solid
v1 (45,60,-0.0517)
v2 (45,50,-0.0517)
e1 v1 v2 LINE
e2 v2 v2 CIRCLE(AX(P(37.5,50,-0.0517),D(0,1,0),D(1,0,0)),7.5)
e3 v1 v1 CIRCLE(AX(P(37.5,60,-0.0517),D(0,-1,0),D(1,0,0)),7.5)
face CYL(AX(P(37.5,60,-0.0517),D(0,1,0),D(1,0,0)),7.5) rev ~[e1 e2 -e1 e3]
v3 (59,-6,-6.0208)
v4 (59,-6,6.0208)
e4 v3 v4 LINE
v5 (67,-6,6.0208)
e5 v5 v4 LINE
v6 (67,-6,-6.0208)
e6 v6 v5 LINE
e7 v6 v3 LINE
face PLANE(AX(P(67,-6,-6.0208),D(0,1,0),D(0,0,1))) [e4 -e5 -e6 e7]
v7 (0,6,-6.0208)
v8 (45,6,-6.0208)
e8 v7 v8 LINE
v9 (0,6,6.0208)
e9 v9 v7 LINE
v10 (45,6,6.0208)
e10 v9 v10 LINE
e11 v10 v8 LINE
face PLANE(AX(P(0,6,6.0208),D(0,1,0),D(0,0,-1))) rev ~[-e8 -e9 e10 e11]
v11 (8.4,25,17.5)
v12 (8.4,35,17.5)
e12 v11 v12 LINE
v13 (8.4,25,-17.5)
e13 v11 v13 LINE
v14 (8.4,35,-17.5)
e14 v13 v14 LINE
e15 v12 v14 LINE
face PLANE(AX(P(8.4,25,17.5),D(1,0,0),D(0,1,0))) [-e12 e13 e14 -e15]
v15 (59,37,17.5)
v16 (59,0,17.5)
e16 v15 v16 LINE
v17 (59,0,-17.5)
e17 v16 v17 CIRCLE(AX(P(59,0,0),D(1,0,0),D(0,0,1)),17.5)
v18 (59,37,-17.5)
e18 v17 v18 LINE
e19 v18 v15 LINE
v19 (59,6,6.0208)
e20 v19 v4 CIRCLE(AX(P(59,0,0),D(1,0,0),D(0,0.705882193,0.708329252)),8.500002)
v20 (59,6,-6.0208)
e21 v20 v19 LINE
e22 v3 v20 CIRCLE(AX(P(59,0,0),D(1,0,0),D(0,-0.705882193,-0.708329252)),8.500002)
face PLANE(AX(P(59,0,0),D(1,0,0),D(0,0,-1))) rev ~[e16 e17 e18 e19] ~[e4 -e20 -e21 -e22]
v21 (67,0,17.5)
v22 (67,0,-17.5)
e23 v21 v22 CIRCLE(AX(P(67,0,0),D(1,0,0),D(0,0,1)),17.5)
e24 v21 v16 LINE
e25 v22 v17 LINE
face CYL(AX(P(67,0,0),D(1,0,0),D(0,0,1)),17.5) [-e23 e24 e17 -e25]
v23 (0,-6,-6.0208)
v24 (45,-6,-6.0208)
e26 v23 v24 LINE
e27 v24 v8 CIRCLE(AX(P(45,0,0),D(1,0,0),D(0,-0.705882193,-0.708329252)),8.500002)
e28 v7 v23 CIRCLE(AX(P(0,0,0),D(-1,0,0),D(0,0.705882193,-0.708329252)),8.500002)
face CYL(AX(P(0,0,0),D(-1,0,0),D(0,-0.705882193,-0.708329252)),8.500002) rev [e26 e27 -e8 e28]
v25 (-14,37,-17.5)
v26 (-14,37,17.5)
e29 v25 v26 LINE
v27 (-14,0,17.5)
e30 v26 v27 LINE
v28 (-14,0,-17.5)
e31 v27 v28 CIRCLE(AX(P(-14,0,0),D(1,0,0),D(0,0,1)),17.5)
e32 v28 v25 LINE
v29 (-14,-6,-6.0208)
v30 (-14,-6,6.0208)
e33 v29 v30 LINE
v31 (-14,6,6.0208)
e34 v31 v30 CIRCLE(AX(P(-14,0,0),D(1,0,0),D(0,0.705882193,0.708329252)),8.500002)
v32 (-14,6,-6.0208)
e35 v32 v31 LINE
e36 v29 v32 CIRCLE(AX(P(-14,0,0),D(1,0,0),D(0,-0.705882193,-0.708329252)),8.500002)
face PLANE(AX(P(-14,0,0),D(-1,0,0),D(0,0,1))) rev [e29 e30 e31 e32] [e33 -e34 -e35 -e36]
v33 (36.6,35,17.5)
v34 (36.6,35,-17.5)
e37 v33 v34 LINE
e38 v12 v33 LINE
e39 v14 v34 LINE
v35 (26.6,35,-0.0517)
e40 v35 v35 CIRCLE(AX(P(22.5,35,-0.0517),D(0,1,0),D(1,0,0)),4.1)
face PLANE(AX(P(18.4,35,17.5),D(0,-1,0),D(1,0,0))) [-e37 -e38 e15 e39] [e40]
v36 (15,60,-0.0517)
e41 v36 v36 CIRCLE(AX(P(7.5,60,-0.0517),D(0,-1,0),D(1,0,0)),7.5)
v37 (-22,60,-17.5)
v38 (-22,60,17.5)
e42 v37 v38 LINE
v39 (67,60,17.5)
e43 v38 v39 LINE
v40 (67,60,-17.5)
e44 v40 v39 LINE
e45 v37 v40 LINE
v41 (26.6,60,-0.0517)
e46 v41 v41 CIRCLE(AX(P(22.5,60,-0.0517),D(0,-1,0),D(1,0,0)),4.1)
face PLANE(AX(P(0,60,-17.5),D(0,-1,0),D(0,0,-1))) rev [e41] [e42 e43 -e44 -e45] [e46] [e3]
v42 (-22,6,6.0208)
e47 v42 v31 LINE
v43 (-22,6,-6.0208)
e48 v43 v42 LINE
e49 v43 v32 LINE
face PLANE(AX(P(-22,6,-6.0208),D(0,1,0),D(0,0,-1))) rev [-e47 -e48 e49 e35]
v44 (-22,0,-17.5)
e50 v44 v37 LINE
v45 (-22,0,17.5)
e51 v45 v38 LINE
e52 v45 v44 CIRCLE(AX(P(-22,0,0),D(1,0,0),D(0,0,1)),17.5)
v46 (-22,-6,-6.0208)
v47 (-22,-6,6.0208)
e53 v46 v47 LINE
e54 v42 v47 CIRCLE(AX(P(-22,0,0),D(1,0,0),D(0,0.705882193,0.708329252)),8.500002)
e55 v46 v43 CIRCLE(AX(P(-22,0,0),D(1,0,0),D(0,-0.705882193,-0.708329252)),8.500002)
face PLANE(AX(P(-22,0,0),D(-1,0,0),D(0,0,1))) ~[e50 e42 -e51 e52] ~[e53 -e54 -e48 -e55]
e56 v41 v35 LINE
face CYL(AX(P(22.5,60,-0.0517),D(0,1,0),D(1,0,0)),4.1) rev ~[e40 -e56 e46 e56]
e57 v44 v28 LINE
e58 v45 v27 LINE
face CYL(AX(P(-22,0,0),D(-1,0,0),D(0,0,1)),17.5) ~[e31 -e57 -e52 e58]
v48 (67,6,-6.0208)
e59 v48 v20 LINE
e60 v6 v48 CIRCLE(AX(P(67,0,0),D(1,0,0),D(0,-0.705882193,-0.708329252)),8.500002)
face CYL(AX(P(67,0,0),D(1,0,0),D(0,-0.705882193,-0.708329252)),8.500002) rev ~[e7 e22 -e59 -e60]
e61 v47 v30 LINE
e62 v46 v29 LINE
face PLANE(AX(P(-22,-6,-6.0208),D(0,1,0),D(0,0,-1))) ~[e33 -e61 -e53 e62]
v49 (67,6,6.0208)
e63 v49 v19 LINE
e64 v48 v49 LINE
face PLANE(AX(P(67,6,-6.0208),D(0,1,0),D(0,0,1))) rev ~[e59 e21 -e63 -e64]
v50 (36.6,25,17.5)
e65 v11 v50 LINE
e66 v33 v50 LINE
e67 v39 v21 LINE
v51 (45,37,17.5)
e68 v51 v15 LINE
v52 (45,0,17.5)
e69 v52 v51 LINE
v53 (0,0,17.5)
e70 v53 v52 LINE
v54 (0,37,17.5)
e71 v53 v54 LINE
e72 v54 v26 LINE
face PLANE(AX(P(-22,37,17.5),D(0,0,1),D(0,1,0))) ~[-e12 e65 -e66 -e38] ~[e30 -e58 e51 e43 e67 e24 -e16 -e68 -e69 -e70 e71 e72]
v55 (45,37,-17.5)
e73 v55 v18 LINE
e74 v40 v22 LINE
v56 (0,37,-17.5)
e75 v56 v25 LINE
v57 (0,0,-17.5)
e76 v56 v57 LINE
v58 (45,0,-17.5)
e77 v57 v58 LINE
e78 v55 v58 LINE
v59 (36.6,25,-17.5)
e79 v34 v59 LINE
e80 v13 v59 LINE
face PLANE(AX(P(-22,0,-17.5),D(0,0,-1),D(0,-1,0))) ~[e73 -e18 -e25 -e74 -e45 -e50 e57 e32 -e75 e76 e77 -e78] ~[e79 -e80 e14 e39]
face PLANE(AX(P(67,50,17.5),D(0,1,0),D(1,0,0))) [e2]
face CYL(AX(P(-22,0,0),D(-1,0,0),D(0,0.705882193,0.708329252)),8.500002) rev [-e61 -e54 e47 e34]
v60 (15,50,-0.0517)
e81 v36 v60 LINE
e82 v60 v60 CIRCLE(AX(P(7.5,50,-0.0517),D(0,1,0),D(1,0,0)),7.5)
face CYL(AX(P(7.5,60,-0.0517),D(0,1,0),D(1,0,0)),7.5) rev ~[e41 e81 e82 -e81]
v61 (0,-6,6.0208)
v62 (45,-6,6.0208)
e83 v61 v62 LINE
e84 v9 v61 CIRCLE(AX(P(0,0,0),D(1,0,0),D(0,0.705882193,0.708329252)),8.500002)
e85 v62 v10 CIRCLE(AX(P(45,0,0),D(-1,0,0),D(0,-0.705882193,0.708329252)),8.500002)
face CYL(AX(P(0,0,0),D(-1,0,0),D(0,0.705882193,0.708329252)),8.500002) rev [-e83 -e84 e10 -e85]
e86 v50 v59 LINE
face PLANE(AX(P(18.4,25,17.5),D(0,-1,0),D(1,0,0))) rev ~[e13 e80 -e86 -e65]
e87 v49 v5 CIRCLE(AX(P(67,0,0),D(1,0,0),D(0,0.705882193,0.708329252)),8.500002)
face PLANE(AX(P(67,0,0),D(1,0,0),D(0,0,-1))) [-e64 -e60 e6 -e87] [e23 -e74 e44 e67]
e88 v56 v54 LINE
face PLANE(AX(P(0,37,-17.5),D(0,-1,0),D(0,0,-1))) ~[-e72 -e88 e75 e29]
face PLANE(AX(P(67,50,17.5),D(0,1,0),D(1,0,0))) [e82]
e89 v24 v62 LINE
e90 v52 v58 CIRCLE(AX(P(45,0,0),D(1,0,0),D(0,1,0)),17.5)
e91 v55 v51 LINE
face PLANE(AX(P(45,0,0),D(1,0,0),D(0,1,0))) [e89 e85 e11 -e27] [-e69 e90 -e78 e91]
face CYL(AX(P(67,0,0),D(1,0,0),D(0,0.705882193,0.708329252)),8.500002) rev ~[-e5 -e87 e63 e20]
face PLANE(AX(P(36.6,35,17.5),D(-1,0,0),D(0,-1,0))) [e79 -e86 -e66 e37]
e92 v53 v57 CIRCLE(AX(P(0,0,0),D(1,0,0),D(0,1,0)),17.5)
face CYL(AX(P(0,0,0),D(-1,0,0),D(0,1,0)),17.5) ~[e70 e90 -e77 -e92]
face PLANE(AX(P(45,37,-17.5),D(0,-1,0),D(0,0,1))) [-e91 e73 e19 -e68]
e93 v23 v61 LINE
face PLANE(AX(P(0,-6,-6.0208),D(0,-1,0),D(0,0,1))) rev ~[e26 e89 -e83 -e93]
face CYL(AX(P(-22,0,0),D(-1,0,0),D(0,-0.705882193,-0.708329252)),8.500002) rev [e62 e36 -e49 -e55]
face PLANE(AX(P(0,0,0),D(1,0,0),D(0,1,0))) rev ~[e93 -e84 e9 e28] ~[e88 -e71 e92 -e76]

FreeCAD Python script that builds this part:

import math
import FreeCAD as App
import Part
import Sketcher
Q = App.Units.Quantity


def add_polygon(sketch, points):
    """Adds a closed chain of lines whose ends are joined by coincident constraints."""
    first, n = sketch.GeometryCount, len(points)
    for a, b in zip(points, points[1:] + points[:1]):
        sketch.addGeometry(Part.LineSegment(App.Vector(*a, 0), App.Vector(*b, 0)), False)
    for i in range(n):
        sketch.addConstraint(Sketcher.Constraint("Coincident", first + i, 2, first + (i + 1) % n, 1))

doc = App.newDocument("Part")
body = doc.addObject("PartDesign::Body", "Body")

sketch1 = body.newObject("Sketcher::SketchObject", "Sketch")
sketch1.AttachmentSupport = (doc.getObject("YZ_Plane"), [""])
sketch1.MapMode = "FlatFace"
sketch1.addGeometry(Part.ArcOfCircle(Part.Circle(App.Vector(0, 0, 0), App.Vector(0, 0, 1), 18), math.radians(90), math.radians(270)), False)
sketch1.addGeometry(Part.LineSegment(App.Vector(0, -18, 0), App.Vector(60, -18, 0)), False)
sketch1.addGeometry(Part.LineSegment(App.Vector(60, -18, 0), App.Vector(60, 18, 0)), False)
sketch1.addGeometry(Part.LineSegment(App.Vector(60, 18, 0), App.Vector(0, 18, 0)), False)
sketch1.addGeometry(Part.LineSegment(App.Vector(-6, -6, 0), App.Vector(-6, 6, 0)), False)
sketch1.addGeometry(Part.ArcOfCircle(Part.Circle(App.Vector(0, 0, 0), App.Vector(0, 0, 1), 9), math.radians(45), math.radians(135)), False)
sketch1.addGeometry(Part.LineSegment(App.Vector(6, 6, 0), App.Vector(6, -6, 0)), False)
sketch1.addGeometry(Part.ArcOfCircle(Part.Circle(App.Vector(0, 0, 0), App.Vector(0, 0, 1), 9), math.radians(-135), math.radians(-45)), False)
sketch1.addConstraint(Sketcher.Constraint("Tangent", 0, 2, 1, 1))
sketch1.addConstraint(Sketcher.Constraint("Coincident", 1, 2, 2, 1))
sketch1.addConstraint(Sketcher.Constraint("Coincident", 2, 2, 3, 1))
sketch1.addConstraint(Sketcher.Constraint("Tangent", 3, 2, 0, 1))
sketch1.addConstraint(Sketcher.Constraint("Coincident", 4, 2, 5, 2))
sketch1.addConstraint(Sketcher.Constraint("Coincident", 5, 1, 6, 1))
sketch1.addConstraint(Sketcher.Constraint("Coincident", 6, 2, 7, 2))
sketch1.addConstraint(Sketcher.Constraint("Coincident", 7, 1, 4, 1))
sketch1.addConstraint(Sketcher.Constraint("Horizontal", 1))
sketch1.addConstraint(Sketcher.Constraint("Vertical", 2))
sketch1.addConstraint(Sketcher.Constraint("Horizontal", 3))
sketch1.addConstraint(Sketcher.Constraint("Vertical", 4))
sketch1.addConstraint(Sketcher.Constraint("Vertical", 6))
sketch1.addConstraint(Sketcher.Constraint("Coincident", 0, 3, -1, 1))
sketch1.addConstraint(Sketcher.Constraint("Coincident", 5, 3, -1, 1))
sketch1.addConstraint(Sketcher.Constraint("Coincident", 7, 3, -1, 1))
sketch1.addConstraint(Sketcher.Constraint("Equal", 5, 7))
sketch1.addConstraint(Sketcher.Constraint("Horizontal", 4, 2, 5, 1))
sketch1.addConstraint(Sketcher.Constraint("Radius", 0, Q("17.5 mm")))
sketch1.addConstraint(Sketcher.Constraint("DistanceX", 1, 1, 1, 2, Q("60 mm")))
sketch1.addConstraint(Sketcher.Constraint("Radius", 5, Q("8.5 mm")))
sketch1.addConstraint(Sketcher.Constraint("DistanceX", 4, 2, -1, 1, Q("6 mm")))
pad1 = body.newObject("PartDesign::Pad", "Pad")
pad1.Profile = sketch1
pad1.Length = 45

sketch2 = body.newObject("Sketcher::SketchObject", "Sketch001")
sketch2.AttachmentSupport = (doc.getObject("YZ_Plane"), [""])
sketch2.MapMode = "FlatFace"
sketch2.AttachmentOffset = App.Placement(App.Vector(0, 0, 45), App.Rotation())
add_polygon(sketch2, [(37, -18), (60, -18), (60, 18), (37, 18)])
sketch2.addConstraint(Sketcher.Constraint("Horizontal", 0))
sketch2.addConstraint(Sketcher.Constraint("Vertical", 1))
sketch2.addConstraint(Sketcher.Constraint("Horizontal", 2))
sketch2.addConstraint(Sketcher.Constraint("Vertical", 3))
sketch2.addConstraint(Sketcher.Constraint("DistanceX", 0, 1, 0, 2, Q("23 mm")))
sketch2.addConstraint(Sketcher.Constraint("DistanceY", 1, 1, 1, 2, Q("35 mm")))
sketch2.addConstraint(Sketcher.Constraint("DistanceX", -1, 1, 0, 2, Q("60 mm")))
sketch2.addConstraint(Sketcher.Constraint("DistanceY", 0, 2, -1, 1, Q("17.5 mm")))
pad2 = body.newObject("PartDesign::Pad", "Pad001")
pad2.Profile = sketch2
pad2.Length = 22
doc.recompute()

datumplane = body.newObject("PartDesign::Plane", "DatumPlane")
datumplane.AttachmentSupport = (doc.getObject("YZ_Plane"), [""])
datumplane.MapMode = "FlatFace"
datumplane.AttachmentOffset = App.Placement(App.Vector(0, 0, 22.5), App.Rotation())
mirrored = body.newObject("PartDesign::Mirrored", "Mirrored")
mirrored.Originals = [pad2]
mirrored.MirrorPlane = (datumplane, [""])
body.Tip = mirrored

sketch3 = body.newObject("Sketcher::SketchObject", "Sketch002")
sketch3.AttachmentSupport = (doc.getObject("YZ_Plane"), [""])
sketch3.MapMode = "FlatFace"
sketch3.AttachmentOffset = App.Placement(App.Vector(0, 0, 67), App.Rotation())
sketch3.addGeometry(Part.LineSegment(App.Vector(0, -18, 0), App.Vector(37, -18, 0)), False)
sketch3.addGeometry(Part.LineSegment(App.Vector(37, -18, 0), App.Vector(37, 18, 0)), False)
sketch3.addGeometry(Part.LineSegment(App.Vector(37, 18, 0), App.Vector(0, 18, 0)), False)
sketch3.addGeometry(Part.ArcOfCircle(Part.Circle(App.Vector(0, 0, 0), App.Vector(0, 0, 1), 18), math.radians(90), math.radians(270)), False)
sketch3.addGeometry(Part.ArcOfCircle(Part.Circle(App.Vector(0, 0, 0), App.Vector(0, 0, 1), 9), math.radians(-135), math.radians(-45)), False)
sketch3.addGeometry(Part.LineSegment(App.Vector(-6, -6, 0), App.Vector(-6, 6, 0)), False)
sketch3.addGeometry(Part.ArcOfCircle(Part.Circle(App.Vector(0, 0, 0), App.Vector(0, 0, 1), 9), math.radians(45), math.radians(135)), False)
sketch3.addGeometry(Part.LineSegment(App.Vector(6, 6, 0), App.Vector(6, -6, 0)), False)
sketch3.addConstraint(Sketcher.Constraint("Coincident", 0, 2, 1, 1))
sketch3.addConstraint(Sketcher.Constraint("Coincident", 1, 2, 2, 1))
sketch3.addConstraint(Sketcher.Constraint("Tangent", 2, 2, 3, 1))
sketch3.addConstraint(Sketcher.Constraint("Tangent", 3, 2, 0, 1))
sketch3.addConstraint(Sketcher.Constraint("Coincident", 4, 1, 5, 1))
sketch3.addConstraint(Sketcher.Constraint("Coincident", 5, 2, 6, 2))
sketch3.addConstraint(Sketcher.Constraint("Coincident", 6, 1, 7, 1))
sketch3.addConstraint(Sketcher.Constraint("Coincident", 7, 2, 4, 2))
sketch3.addConstraint(Sketcher.Constraint("Horizontal", 0))
sketch3.addConstraint(Sketcher.Constraint("Vertical", 1))
sketch3.addConstraint(Sketcher.Constraint("Horizontal", 2))
sketch3.addConstraint(Sketcher.Constraint("Vertical", 5))
sketch3.addConstraint(Sketcher.Constraint("Vertical", 7))
sketch3.addConstraint(Sketcher.Constraint("Coincident", 3, 3, -1, 1))
sketch3.addConstraint(Sketcher.Constraint("Coincident", 4, 3, -1, 1))
sketch3.addConstraint(Sketcher.Constraint("Coincident", 6, 3, -1, 1))
sketch3.addConstraint(Sketcher.Constraint("Equal", 4, 6))
sketch3.addConstraint(Sketcher.Constraint("Horizontal", 5, 2, 6, 1))
sketch3.addConstraint(Sketcher.Constraint("Radius", 3, Q("17.5 mm")))
sketch3.addConstraint(Sketcher.Constraint("Radius", 4, Q("8.5 mm")))
sketch3.addConstraint(Sketcher.Constraint("DistanceX", 0, 1, 0, 2, Q("37 mm")))
sketch3.addConstraint(Sketcher.Constraint("DistanceX", 4, 1, -1, 1, Q("6 mm")))
pad3 = body.newObject("PartDesign::Pad", "Pad002")
pad3.Profile = sketch3
pad3.Length = 8
pad3.Reversed = True
doc.recompute()

datumplane2 = body.newObject("PartDesign::Plane", "DatumPlane001")
datumplane2.AttachmentSupport = (doc.getObject("YZ_Plane"), [""])
datumplane2.MapMode = "FlatFace"
datumplane2.AttachmentOffset = App.Placement(App.Vector(0, 0, 22.5), App.Rotation())
mirrored2 = body.newObject("PartDesign::Mirrored", "Mirrored001")
mirrored2.Originals = [pad3]
mirrored2.MirrorPlane = (datumplane2, [""])
body.Tip = mirrored2

sketch4 = body.newObject("Sketcher::SketchObject", "Sketch003")
sketch4.AttachmentSupport = (doc.getObject("XZ_Plane"), [""])
sketch4.MapMode = "FlatFace"
sketch4.AttachmentOffset = App.Placement(App.Vector(0, 0, -60), App.Rotation())
sketch4.addGeometry(Part.Circle(App.Vector(8, 0, 0), App.Vector(0, 0, 1), 8), False)
sketch4.addGeometry(Part.Circle(App.Vector(38, 0, 0), App.Vector(0, 0, 1), 8), False)
sketch4.addConstraint(Sketcher.Constraint("Equal", 0, 1))
sketch4.addConstraint(Sketcher.Constraint("Horizontal", 0, 3, 1, 3))
sketch4.addConstraint(Sketcher.Constraint("Diameter", 0, Q("15 mm")))
sketch4.addConstraint(Sketcher.Constraint("DistanceX", 0, 3, 1, 3, Q("30 mm")))
sketch4.addConstraint(Sketcher.Constraint("DistanceX", -1, 1, 0, 3, Q("7.5 mm")))
sketch4.addConstraint(Sketcher.Constraint("DistanceY", 0, 3, -1, 1, Q("0.0517 mm")))
pocket1 = body.newObject("PartDesign::Pocket", "Pocket")
pocket1.Profile = sketch4
pocket1.Length = 10
pocket1.Reversed = True

sketch5 = body.newObject("Sketcher::SketchObject", "Sketch004")
sketch5.AttachmentSupport = (doc.getObject("XZ_Plane"), [""])
sketch5.MapMode = "FlatFace"
sketch5.AttachmentOffset = App.Placement(App.Vector(0, 0, -60), App.Rotation())
sketch5.addGeometry(Part.Circle(App.Vector(22.5, -0.1, 0), App.Vector(0, 0, 1), 4.1), False)
sketch5.addConstraint(Sketcher.Constraint("Diameter", 0, Q("8.2 mm")))
sketch5.addConstraint(Sketcher.Constraint("DistanceX", -1, 1, 0, 3, Q("22.5 mm")))
sketch5.addConstraint(Sketcher.Constraint("DistanceY", 0, 3, -1, 1, Q("0.0517 mm")))
pocket2 = body.newObject("PartDesign::Pocket", "Pocket001")
pocket2.Profile = sketch5
pocket2.Length = 35
pocket2.Reversed = True

sketch6 = body.newObject("Sketcher::SketchObject", "Sketch005")
sketch6.AttachmentSupport = (doc.getObject("XY_Plane"), [""])
sketch6.MapMode = "FlatFace"
sketch6.AttachmentOffset = App.Placement(App.Vector(0, 0, 17.5), App.Rotation())
add_polygon(sketch6, [(8, 35), (8, 25), (37, 25), (37, 35)])
sketch6.addConstraint(Sketcher.Constraint("Vertical", 0))
sketch6.addConstraint(Sketcher.Constraint("Horizontal", 1))
sketch6.addConstraint(Sketcher.Constraint("Vertical", 2))
sketch6.addConstraint(Sketcher.Constraint("Horizontal", 3))
sketch6.addConstraint(Sketcher.Constraint("DistanceY", 0, 2, 0, 1, Q("10 mm")))
sketch6.addConstraint(Sketcher.Constraint("DistanceX", 1, 1, 1, 2, Q("28.2 mm")))
sketch6.addConstraint(Sketcher.Constraint("DistanceY", -1, 1, 0, 2, Q("25 mm")))
sketch6.addConstraint(Sketcher.Constraint("DistanceX", -1, 1, 0, 2, Q("8.4 mm")))
pocket3 = body.newObject("PartDesign::Pocket", "Pocket002")
pocket3.Profile = sketch6
pocket3.Length = 84.5

doc.recompute()
